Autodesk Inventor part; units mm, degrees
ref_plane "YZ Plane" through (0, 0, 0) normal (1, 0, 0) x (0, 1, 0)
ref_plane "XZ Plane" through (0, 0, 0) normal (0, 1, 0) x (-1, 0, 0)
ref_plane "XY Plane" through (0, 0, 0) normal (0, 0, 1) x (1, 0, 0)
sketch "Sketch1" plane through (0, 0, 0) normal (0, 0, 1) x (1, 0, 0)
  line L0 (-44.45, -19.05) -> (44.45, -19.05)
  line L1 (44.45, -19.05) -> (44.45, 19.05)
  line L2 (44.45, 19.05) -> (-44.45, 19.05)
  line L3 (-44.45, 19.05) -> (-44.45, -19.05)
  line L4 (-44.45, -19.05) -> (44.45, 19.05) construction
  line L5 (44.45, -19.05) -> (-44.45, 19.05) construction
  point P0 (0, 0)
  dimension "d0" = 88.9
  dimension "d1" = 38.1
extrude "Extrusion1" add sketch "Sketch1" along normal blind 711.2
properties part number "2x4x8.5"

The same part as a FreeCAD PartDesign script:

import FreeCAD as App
import Part
import Sketcher

V = App.Vector
Q = App.Units.Quantity

doc = App.newDocument("Part")
body = doc.addObject("PartDesign::Body", "Body")

sketch1 = body.newObject("Sketcher::SketchObject", "Sketch")
sketch1.AttachmentSupport = (doc.getObject("XY_Plane"), [""])
sketch1.MapMode = "FlatFace"
sketch1.addGeometry([
    Part.LineSegment(V(-44, 19, 0), V(-44, -19, 0)),
    Part.LineSegment(V(-44, -19, 0), V(44, -19, 0)),
    Part.LineSegment(V(44, -19, 0), V(44, 19, 0)),
    Part.LineSegment(V(44, 19, 0), V(-44, 19, 0)),
], False)
sketch1.addConstraint([
    Sketcher.Constraint("Coincident", 0, 2, 1, 1),
    Sketcher.Constraint("Coincident", 1, 2, 2, 1),
    Sketcher.Constraint("Coincident", 2, 2, 3, 1),
    Sketcher.Constraint("Coincident", 3, 2, 0, 1),
    Sketcher.Constraint("Vertical", 0),
    Sketcher.Constraint("Horizontal", 1),
    Sketcher.Constraint("Vertical", 2),
    Sketcher.Constraint("Horizontal", 3),
    Sketcher.Constraint("Symmetric", 0, 2, 2, 2, -1, 1),
    Sketcher.Constraint("DistanceX", 1, 1, 1, 2, Q("3.5 in")),
    Sketcher.Constraint("DistanceY", 0, 2, 0, 1, Q("1.5 in")),
])
pad1 = body.newObject("PartDesign::Pad", "Pad")
pad1.Profile = sketch1
pad1.Length = Q("28 in")

doc.recompute()
